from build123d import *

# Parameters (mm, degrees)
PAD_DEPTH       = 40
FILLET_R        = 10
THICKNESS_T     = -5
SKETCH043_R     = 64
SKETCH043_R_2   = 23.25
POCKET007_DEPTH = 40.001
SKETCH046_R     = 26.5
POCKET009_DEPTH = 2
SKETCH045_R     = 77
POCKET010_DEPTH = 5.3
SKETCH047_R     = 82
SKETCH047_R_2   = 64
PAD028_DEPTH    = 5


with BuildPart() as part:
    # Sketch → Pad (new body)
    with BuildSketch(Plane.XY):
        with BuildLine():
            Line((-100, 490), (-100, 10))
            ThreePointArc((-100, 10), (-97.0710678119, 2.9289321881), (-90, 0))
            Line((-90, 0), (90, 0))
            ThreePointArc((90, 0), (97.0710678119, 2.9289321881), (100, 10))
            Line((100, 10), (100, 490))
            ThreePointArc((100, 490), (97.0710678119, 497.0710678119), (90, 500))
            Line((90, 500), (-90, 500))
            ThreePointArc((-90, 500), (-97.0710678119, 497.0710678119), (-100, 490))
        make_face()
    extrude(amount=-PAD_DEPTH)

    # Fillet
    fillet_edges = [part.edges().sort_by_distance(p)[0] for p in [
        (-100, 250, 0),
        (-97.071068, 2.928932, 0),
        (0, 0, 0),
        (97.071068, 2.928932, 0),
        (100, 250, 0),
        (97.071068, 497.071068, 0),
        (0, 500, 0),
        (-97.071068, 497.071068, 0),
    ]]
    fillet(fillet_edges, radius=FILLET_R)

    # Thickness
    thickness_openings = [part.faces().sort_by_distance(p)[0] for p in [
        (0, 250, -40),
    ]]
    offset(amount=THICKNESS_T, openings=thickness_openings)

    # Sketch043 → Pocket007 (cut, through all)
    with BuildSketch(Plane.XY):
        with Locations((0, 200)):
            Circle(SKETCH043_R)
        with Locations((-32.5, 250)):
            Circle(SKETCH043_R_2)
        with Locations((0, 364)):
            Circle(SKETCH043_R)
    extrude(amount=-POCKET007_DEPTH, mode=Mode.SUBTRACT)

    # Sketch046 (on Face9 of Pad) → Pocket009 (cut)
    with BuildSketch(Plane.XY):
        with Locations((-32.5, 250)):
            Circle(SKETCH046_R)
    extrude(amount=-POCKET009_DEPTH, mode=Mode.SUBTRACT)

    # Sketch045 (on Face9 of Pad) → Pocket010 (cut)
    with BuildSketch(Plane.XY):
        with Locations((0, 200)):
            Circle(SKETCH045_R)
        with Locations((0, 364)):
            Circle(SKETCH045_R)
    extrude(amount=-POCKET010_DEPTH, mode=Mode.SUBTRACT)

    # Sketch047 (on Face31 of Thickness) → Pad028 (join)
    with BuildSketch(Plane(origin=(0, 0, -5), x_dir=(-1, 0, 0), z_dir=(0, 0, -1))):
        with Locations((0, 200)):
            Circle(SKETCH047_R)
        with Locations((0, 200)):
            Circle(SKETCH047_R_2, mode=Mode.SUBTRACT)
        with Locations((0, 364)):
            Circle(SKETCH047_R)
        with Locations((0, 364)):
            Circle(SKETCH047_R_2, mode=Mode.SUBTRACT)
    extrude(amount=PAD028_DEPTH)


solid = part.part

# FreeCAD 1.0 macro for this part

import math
import FreeCAD as App
import Part
import Sketcher
Q = App.Units.Quantity


def edges_at(feature, points):
    """Names of the edges that pass closest to the given points."""
    edges = feature.Shape.Edges
    near = lambda p: min(range(len(edges)), key=lambda i: edges[i].distToShape(Part.Vertex(*p))[0])
    return sorted({f"Edge{near(p) + 1}" for p in points})


def faces_at(feature, points):
    """Names of the faces that lie closest to the given points."""
    faces = feature.Shape.Faces
    near = lambda p: min(range(len(faces)), key=lambda i: faces[i].distToShape(Part.Vertex(*p))[0])
    return sorted({f"Face{near(p) + 1}" for p in points})

doc = App.newDocument("Part")
params = doc.addObject("Spreadsheet::Sheet", "Params")
for row, (alias, value) in enumerate([
    ("sketch1_radius", "10 mm"),
    ("sketch1_width", "180 mm"),
    ("sketch1_height", "480 mm"),
    ("pad1_length", "40 mm"),
    ("fillet_radius", "10 mm"),
    ("thickness_wall", "5 mm"),
    ("sketch2_diameter", "128 mm"),
    ("sketch2_radius", "23.25 mm"),
    ("sketch3_diameter", "53 mm"),
    ("pocket2_length", "2 mm"),
    ("sketch4_diameter", "154 mm"),
    ("pocket3_length", "5.3 mm"),
    ("sketch5_diameter", "164 mm"),
    ("sketch5_diameter2", "128 mm"),
    ("pad2_length", "5 mm"),
], start=1):
    params.set(f"A{row}", alias)
    params.set(f"B{row}", "=" + value)
    params.setAlias(f"B{row}", alias)

body = doc.addObject("PartDesign::Body", "Body")

# Sketch on XY plane
sketch1 = body.newObject("Sketcher::SketchObject", "Sketch")
sketch1.AttachmentSupport = (doc.getObject("XY_Plane"), [""])
sketch1.MapMode = "FlatFace"
sketch1.addGeometry(Part.LineSegment(App.Vector(-100, 490, 0), App.Vector(-100, 10, 0)), False)
sketch1.addGeometry(Part.ArcOfCircle(Part.Circle(App.Vector(-90, 10, 0), App.Vector(0, 0, 1), 10), math.radians(180), math.radians(270)), False)
sketch1.addGeometry(Part.LineSegment(App.Vector(-90, 0, 0), App.Vector(90, 0, 0)), False)
sketch1.addGeometry(Part.ArcOfCircle(Part.Circle(App.Vector(90, 10, 0), App.Vector(0, 0, 1), 10), math.radians(-90), math.radians(0)), False)
sketch1.addGeometry(Part.LineSegment(App.Vector(100, 10, 0), App.Vector(100, 490, 0)), False)
sketch1.addGeometry(Part.ArcOfCircle(Part.Circle(App.Vector(90, 490, 0), App.Vector(0, 0, 1), 10), math.radians(0), math.radians(90)), False)
sketch1.addGeometry(Part.LineSegment(App.Vector(90, 500, 0), App.Vector(-90, 500, 0)), False)
sketch1.addGeometry(Part.ArcOfCircle(Part.Circle(App.Vector(-90, 490, 0), App.Vector(0, 0, 1), 10), math.radians(90), math.radians(180)), False)
sketch1.addConstraint(Sketcher.Constraint("Tangent", 0, 2, 1, 1))
sketch1.addConstraint(Sketcher.Constraint("Tangent", 1, 2, 2, 1))
sketch1.addConstraint(Sketcher.Constraint("Tangent", 2, 2, 3, 1))
sketch1.addConstraint(Sketcher.Constraint("Tangent", 3, 2, 4, 1))
sketch1.addConstraint(Sketcher.Constraint("Tangent", 4, 2, 5, 1))
sketch1.addConstraint(Sketcher.Constraint("Tangent", 5, 2, 6, 1))
sketch1.addConstraint(Sketcher.Constraint("Tangent", 6, 2, 7, 1))
sketch1.addConstraint(Sketcher.Constraint("Tangent", 7, 2, 0, 1))
sketch1.addConstraint(Sketcher.Constraint("Vertical", 0))
sketch1.addConstraint(Sketcher.Constraint("Horizontal", 2))
sketch1.addConstraint(Sketcher.Constraint("Vertical", 4))
sketch1.addConstraint(Sketcher.Constraint("Horizontal", 6))
sketch1.addConstraint(Sketcher.Constraint("Equal", 1, 3))
sketch1.addConstraint(Sketcher.Constraint("Equal", 3, 5))
sketch1.addConstraint(Sketcher.Constraint("Equal", 5, 7))
sketch1.addConstraint(Sketcher.Constraint("Symmetric", 1, 2, 2, 2, -1, 1))
sketch1.addConstraint(Sketcher.Constraint("Radius", 1, Q("10 mm")))
sketch1.addConstraint(Sketcher.Constraint("DistanceX", 2, 1, 2, 2, Q("180 mm")))
sketch1.addConstraint(Sketcher.Constraint("DistanceY", 0, 2, 0, 1, Q("480 mm")))
sketch1.setExpression("Constraints[16]", "Params.sketch1_radius")
sketch1.setExpression("Constraints[17]", "Params.sketch1_width")
sketch1.setExpression("Constraints[18]", "Params.sketch1_height")
pad1 = body.newObject("PartDesign::Pad", "Pad")
pad1.Profile = sketch1
pad1.setExpression("Length", "Params.pad1_length")
pad1.Reversed = True
doc.recompute()

fillet = body.newObject("PartDesign::Fillet", "Fillet")
fillet.Base = (pad1, edges_at(pad1, [
    (-100, 250, 0),
    (-97.071, 2.929, 0),
    (0, 0, 0),
    (97.071, 2.929, 0),
    (100, 250, 0),
    (97.071, 497.071, 0),
    (0, 500, 0),
    (-97.071, 497.071, 0),
]))
fillet.setExpression("Radius", "Params.fillet_radius")
doc.recompute()

thickness = body.newObject("PartDesign::Thickness", "Thickness")
thickness.Base = (fillet, faces_at(fillet, [(0, 250, -40)]))
thickness.setExpression("Value", "Params.thickness_wall")
thickness.Reversed = True
thickness.Join = "Arc"

# Sketch on XY plane
sketch2 = body.newObject("Sketcher::SketchObject", "Sketch001")
sketch2.AttachmentSupport = (doc.getObject("XY_Plane"), [""])
sketch2.MapMode = "FlatFace"
sketch2.addGeometry(Part.ArcOfCircle(Part.Circle(App.Vector(0, 200, 0), App.Vector(0, 0, 1), 64), math.radians(144.325713), math.radians(461.722022)), False)
sketch2.addGeometry(Part.ArcOfCircle(Part.Circle(App.Vector(-32.5, 250, 0), App.Vector(0, 0, 1), 23.25), math.radians(33.00708), math.radians(213.040655)), False)
sketch2.addGeometry(Part.Circle(App.Vector(0, 364, 0), App.Vector(0, 0, 1), 64), False)
sketch2.addConstraint(Sketcher.Constraint("Coincident", 0, 1, 1, 2))
sketch2.addConstraint(Sketcher.Constraint("Coincident", 1, 1, 0, 2))
sketch2.addConstraint(Sketcher.Constraint("Equal", 0, 2))
sketch2.addConstraint(Sketcher.Constraint("PointOnObject", 0, 3, -2))
sketch2.addConstraint(Sketcher.Constraint("PointOnObject", 2, 3, -2))
sketch2.addConstraint(Sketcher.Constraint("Diameter", 2, Q("128 mm")))
sketch2.addConstraint(Sketcher.Constraint("Radius", 1, Q("23.25 mm")))
sketch2.addConstraint(Sketcher.Constraint("DistanceY", -1, 1, 0, 3, Q("200 mm")))
sketch2.addConstraint(Sketcher.Constraint("DistanceY", -1, 1, 1, 3, Q("250 mm")))
sketch2.addConstraint(Sketcher.Constraint("DistanceY", -1, 1, 2, 3, Q("364 mm")))
sketch2.addConstraint(Sketcher.Constraint("DistanceX", 1, 3, -1, 1, Q("32.5 mm")))
sketch2.setExpression("Constraints[5]", "Params.sketch2_diameter")
sketch2.setExpression("Constraints[6]", "Params.sketch2_radius")
pocket1 = body.newObject("PartDesign::Pocket", "Pocket")
pocket1.Profile = sketch2
pocket1.Type = "ThroughAll"

# Sketch on XY plane
sketch3 = body.newObject("Sketcher::SketchObject", "Sketch002")
sketch3.AttachmentSupport = (doc.getObject("XY_Plane"), [""])
sketch3.MapMode = "FlatFace"
sketch3.addGeometry(Part.Circle(App.Vector(-32.5, 250, 0), App.Vector(0, 0, 1), 26.5), False)
sketch3.addConstraint(Sketcher.Constraint("Diameter", 0, Q("53 mm")))
sketch3.addConstraint(Sketcher.Constraint("DistanceY", -1, 1, 0, 3, Q("250 mm")))
sketch3.addConstraint(Sketcher.Constraint("DistanceX", 0, 3, -1, 1, Q("32.5 mm")))
sketch3.setExpression("Constraints[0]", "Params.sketch3_diameter")
pocket2 = body.newObject("PartDesign::Pocket", "Pocket001")
pocket2.Profile = sketch3
pocket2.setExpression("Length", "Params.pocket2_length")

# Sketch on XY plane
sketch4 = body.newObject("Sketcher::SketchObject", "Sketch003")
sketch4.AttachmentSupport = (doc.getObject("XY_Plane"), [""])
sketch4.MapMode = "FlatFace"
sketch4.addGeometry(Part.Circle(App.Vector(0, 200, 0), App.Vector(0, 0, 1), 77), False)
sketch4.addGeometry(Part.Circle(App.Vector(0, 364, 0), App.Vector(0, 0, 1), 77), False)
sketch4.addConstraint(Sketcher.Constraint("Equal", 0, 1))
sketch4.addConstraint(Sketcher.Constraint("PointOnObject", 0, 3, -2))
sketch4.addConstraint(Sketcher.Constraint("PointOnObject", 1, 3, -2))
sketch4.addConstraint(Sketcher.Constraint("Diameter", 0, Q("154 mm")))
sketch4.addConstraint(Sketcher.Constraint("DistanceY", -1, 1, 0, 3, Q("200 mm")))
sketch4.addConstraint(Sketcher.Constraint("DistanceY", -1, 1, 1, 3, Q("364 mm")))
sketch4.setExpression("Constraints[3]", "Params.sketch4_diameter")
pocket3 = body.newObject("PartDesign::Pocket", "Pocket002")
pocket3.Profile = sketch4
pocket3.setExpression("Length", "Params.pocket3_length")

# Sketch on XY plane
sketch5 = body.newObject("Sketcher::SketchObject", "Sketch004")
sketch5.AttachmentSupport = (doc.getObject("XY_Plane"), [""])
sketch5.MapMode = "FlatFace"
sketch5.AttachmentOffset = App.Placement(App.Vector(0, 0, -5), App.Rotation())
sketch5.addGeometry(Part.Circle(App.Vector(0, 200, 0), App.Vector(0, 0, 1), 82), False)
sketch5.addGeometry(Part.Circle(App.Vector(0, 200, 0), App.Vector(0, 0, 1), 64), False)
sketch5.addGeometry(Part.Circle(App.Vector(0, 364, 0), App.Vector(0, 0, 1), 82), False)
sketch5.addGeometry(Part.Circle(App.Vector(0, 364, 0), App.Vector(0, 0, 1), 64), False)
sketch5.addConstraint(Sketcher.Constraint("Coincident", 1, 3, 0, 3))
sketch5.addConstraint(Sketcher.Constraint("Coincident", 3, 3, 2, 3))
sketch5.addConstraint(Sketcher.Constraint("Equal", 0, 2))
sketch5.addConstraint(Sketcher.Constraint("Equal", 1, 3))
sketch5.addConstraint(Sketcher.Constraint("PointOnObject", 0, 3, -2))
sketch5.addConstraint(Sketcher.Constraint("PointOnObject", 2, 3, -2))
sketch5.addConstraint(Sketcher.Constraint("Diameter", 0, Q("164 mm")))
sketch5.addConstraint(Sketcher.Constraint("Diameter", 1, Q("128 mm")))
sketch5.addConstraint(Sketcher.Constraint("DistanceY", -1, 1, 0, 3, Q("200 mm")))
sketch5.addConstraint(Sketcher.Constraint("DistanceY", -1, 1, 2, 3, Q("364 mm")))
sketch5.setExpression("Constraints[6]", "Params.sketch5_diameter")
sketch5.setExpression("Constraints[7]", "Params.sketch5_diameter2")
pad2 = body.newObject("PartDesign::Pad", "Pad001")
pad2.Profile = sketch5
pad2.setExpression("Length", "Params.pad2_length")
pad2.Reversed = True

doc.recompute()
